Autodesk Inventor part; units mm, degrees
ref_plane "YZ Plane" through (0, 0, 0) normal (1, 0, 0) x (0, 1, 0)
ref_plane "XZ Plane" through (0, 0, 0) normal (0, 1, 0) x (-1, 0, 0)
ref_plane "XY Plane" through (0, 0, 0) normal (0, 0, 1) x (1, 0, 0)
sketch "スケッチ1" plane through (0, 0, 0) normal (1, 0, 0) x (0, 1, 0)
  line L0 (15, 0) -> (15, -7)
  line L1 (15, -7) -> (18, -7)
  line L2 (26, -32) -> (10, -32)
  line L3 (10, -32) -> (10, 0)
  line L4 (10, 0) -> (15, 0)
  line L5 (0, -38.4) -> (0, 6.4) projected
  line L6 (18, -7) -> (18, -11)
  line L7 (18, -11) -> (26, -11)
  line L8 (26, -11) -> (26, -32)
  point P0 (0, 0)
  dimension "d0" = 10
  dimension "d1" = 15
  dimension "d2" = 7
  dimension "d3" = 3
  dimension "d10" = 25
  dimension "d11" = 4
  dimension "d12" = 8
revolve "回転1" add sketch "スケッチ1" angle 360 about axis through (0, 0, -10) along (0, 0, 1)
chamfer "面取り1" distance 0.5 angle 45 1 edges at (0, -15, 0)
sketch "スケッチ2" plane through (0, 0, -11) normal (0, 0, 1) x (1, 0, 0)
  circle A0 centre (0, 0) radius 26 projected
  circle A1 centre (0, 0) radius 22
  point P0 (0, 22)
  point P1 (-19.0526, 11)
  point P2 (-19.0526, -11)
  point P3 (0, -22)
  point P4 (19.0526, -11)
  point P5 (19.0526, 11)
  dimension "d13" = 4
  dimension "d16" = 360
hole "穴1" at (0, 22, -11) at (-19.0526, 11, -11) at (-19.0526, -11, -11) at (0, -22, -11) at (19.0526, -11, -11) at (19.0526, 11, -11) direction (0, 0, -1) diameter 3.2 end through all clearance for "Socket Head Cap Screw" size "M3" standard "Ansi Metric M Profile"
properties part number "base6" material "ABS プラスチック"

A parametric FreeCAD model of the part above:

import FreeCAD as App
import Part
import Sketcher

V = App.Vector
Q = App.Units.Quantity


def edges_at(feature, points):
    """Names of the edges that pass closest to the given points."""
    edges = feature.Shape.Edges
    near = lambda p: min(range(len(edges)), key=lambda i: edges[i].distToShape(Part.Vertex(*p))[0])
    return sorted({f"Edge{near(p) + 1}" for p in points})

doc = App.newDocument("Part")
body = doc.addObject("PartDesign::Body", "Body")

# Sketch on YZ plane
sketch1 = doc.addObject("Sketcher::SketchObject", "Sketch")
body.addObject(sketch1)
sketch1.AttachmentSupport = (doc.YZ_Plane, [""])
sketch1.MapMode = "FlatFace"
sketch1.addGeometry([
    Part.LineSegment(V(15, -7, 0), V(15, 0, 0)),  # 0
    Part.LineSegment(V(15, 0, 0), V(10, 0, 0)),  # 1
    Part.LineSegment(V(10, 0, 0), V(10, -32, 0)),  # 2
    Part.LineSegment(V(10, -32, 0), V(26, -32, 0)),  # 3
    Part.LineSegment(V(26, -32, 0), V(26, -11, 0)),  # 4
    Part.LineSegment(V(26, -11, 0), V(18, -11, 0)),  # 5
    Part.LineSegment(V(18, -11, 0), V(18, -7, 0)),  # 6
    Part.LineSegment(V(18, -7, 0), V(15, -7, 0)),  # 7
], False)
sketch1.addConstraint([
    Sketcher.Constraint("Coincident", 0, 2, 1, 1),
    Sketcher.Constraint("Coincident", 1, 2, 2, 1),
    Sketcher.Constraint("Coincident", 2, 2, 3, 1),
    Sketcher.Constraint("Coincident", 3, 2, 4, 1),
    Sketcher.Constraint("Coincident", 4, 2, 5, 1),
    Sketcher.Constraint("Coincident", 5, 2, 6, 1),
    Sketcher.Constraint("Coincident", 6, 2, 7, 1),
    Sketcher.Constraint("Coincident", 7, 2, 0, 1),
    Sketcher.Constraint("Vertical", 0),
    Sketcher.Constraint("Horizontal", 1),
    Sketcher.Constraint("Vertical", 2),
    Sketcher.Constraint("Horizontal", 3),
    Sketcher.Constraint("Vertical", 4),
    Sketcher.Constraint("Horizontal", 5),
    Sketcher.Constraint("Vertical", 6),
    Sketcher.Constraint("Horizontal", 7),
    Sketcher.Constraint("PointOnObject", 0, 2, -1),
    Sketcher.Constraint("DistanceX", 5, 2, 5, 1, Q("8 mm")),
    Sketcher.Constraint("DistanceX", 7, 2, 7, 1, Q("3 mm")),
    Sketcher.Constraint("DistanceY", 0, 1, 0, 2, Q("7 mm")),
    Sketcher.Constraint("DistanceY", 6, 1, 6, 2, Q("4 mm")),
    Sketcher.Constraint("DistanceX", -1, 1, 0, 2, Q("15 mm")),
    Sketcher.Constraint("DistanceX", -1, 1, 1, 2, Q("10 mm")),
    Sketcher.Constraint("DistanceY", 2, 2, 6, 2, Q("25 mm")),
])
revolution = doc.addObject("PartDesign::Revolution", "Revolution")
body.addObject(revolution)
revolution.Profile = sketch1
revolution.ReferenceAxis = (sketch1, ["V_Axis"])
revolution.Angle = 360
doc.recompute()

chamfer = doc.addObject("PartDesign::Chamfer", "Chamfer")
body.addObject(chamfer)
chamfer.Base = (revolution, edges_at(revolution, [(0, -15, 0)]))
chamfer.Size = 0.5

# Sketch on XY plane
sketch2 = doc.addObject("Sketcher::SketchObject", "Sketch001")
body.addObject(sketch2)
sketch2.AttachmentSupport = (doc.XY_Plane, [""])
sketch2.MapMode = "FlatFace"
sketch2.AttachmentOffset = App.Placement(V(0, 0, -11), App.Rotation())
sketch2.addGeometry([
    Part.Circle(V(0, 22, 0), V(0, 0, 1), 1.6),  # 0
    Part.Circle(V(-19.1, 11, 0), V(0, 0, 1), 1.6),  # 1
    Part.Circle(V(-19.1, -11, 0), V(0, 0, 1), 1.6),  # 2
    Part.Circle(V(0, -22, 0), V(0, 0, 1), 1.6),  # 3
    Part.Circle(V(19.1, -11, 0), V(0, 0, 1), 1.6),  # 4
    Part.Circle(V(19.1, 11, 0), V(0, 0, 1), 1.6),  # 5
], False)
sketch2.addConstraint([
    Sketcher.Constraint("Equal", 0, 1),
    Sketcher.Constraint("Equal", 1, 2),
    Sketcher.Constraint("Equal", 2, 3),
    Sketcher.Constraint("Equal", 3, 4),
    Sketcher.Constraint("Equal", 4, 5),
    Sketcher.Constraint("Symmetric", 0, 3, 3, 3, -1, 1),
    Sketcher.Constraint("Symmetric", 1, 3, 4, 3, -1, 1),
    Sketcher.Constraint("Symmetric", 2, 3, 5, 3, -1, 1),
    Sketcher.Constraint("Symmetric", 2, 3, 4, 3, -2),
    Sketcher.Constraint("PointOnObject", 0, 3, -2),
    Sketcher.Constraint("Diameter", 0, Q("3.2 mm")),
    Sketcher.Constraint("DistanceY", -1, 1, 0, 3, Q("22 mm")),
    Sketcher.Constraint("DistanceY", -1, 1, 1, 3, Q("11 mm")),
    Sketcher.Constraint("DistanceX", 1, 3, -1, 1, Q("19.0526 mm")),
])
doc.recompute()
hole = doc.addObject("PartDesign::Hole", "Hole")
body.addObject(hole)
hole.Profile = sketch2
hole.ThreadType = "None"
hole.Diameter = 3.2
hole.DepthType = "ThroughAll"

doc.recompute()
